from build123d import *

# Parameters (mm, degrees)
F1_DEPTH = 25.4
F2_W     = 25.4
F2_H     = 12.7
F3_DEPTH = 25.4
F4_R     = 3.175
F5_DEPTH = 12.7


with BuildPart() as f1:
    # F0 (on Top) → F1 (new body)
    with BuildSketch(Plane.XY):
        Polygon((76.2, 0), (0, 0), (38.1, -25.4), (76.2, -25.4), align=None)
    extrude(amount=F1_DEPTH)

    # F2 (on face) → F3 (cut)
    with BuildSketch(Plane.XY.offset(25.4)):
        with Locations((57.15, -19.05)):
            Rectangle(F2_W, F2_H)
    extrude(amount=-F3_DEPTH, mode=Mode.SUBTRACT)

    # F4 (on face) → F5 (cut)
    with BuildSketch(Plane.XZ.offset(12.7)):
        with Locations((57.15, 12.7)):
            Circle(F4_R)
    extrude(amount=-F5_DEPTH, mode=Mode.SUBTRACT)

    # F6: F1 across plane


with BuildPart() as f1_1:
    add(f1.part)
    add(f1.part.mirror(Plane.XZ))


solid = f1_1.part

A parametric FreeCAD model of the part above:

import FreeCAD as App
import Part
import Sketcher

V = App.Vector
Q = App.Units.Quantity

doc = App.newDocument("Part")
body = doc.addObject("PartDesign::Body", "Body")

sketch1 = body.newObject("Sketcher::SketchObject", "Sketch")
sketch1.AttachmentSupport = (doc.getObject("XY_Plane"), [""])
sketch1.MapMode = "FlatFace"
sketch1.addGeometry([
    Part.LineSegment(V(76, 0, 0), V(0, 0, 0)),
    Part.LineSegment(V(0, 0, 0), V(38, -25, 0)),
    Part.LineSegment(V(38, -25, 0), V(76, -25, 0)),
    Part.LineSegment(V(76, -25, 0), V(76, 0, 0)),
], False)
sketch1.addConstraint([
    Sketcher.Constraint("Coincident", 0, 2, 1, 1),
    Sketcher.Constraint("Coincident", 1, 2, 2, 1),
    Sketcher.Constraint("Coincident", 2, 2, 3, 1),
    Sketcher.Constraint("Coincident", 3, 2, 0, 1),
    Sketcher.Constraint("Horizontal", 0),
    Sketcher.Constraint("Horizontal", 2),
    Sketcher.Constraint("Vertical", 3),
    Sketcher.Constraint("Coincident", 0, 2, -1, 1),
    Sketcher.Constraint("DistanceX", 0, 2, 0, 1, Q("3 in")),
    Sketcher.Constraint("DistanceY", 3, 1, 3, 2, Q("1 in")),
    Sketcher.Constraint("DistanceX", 2, 1, 2, 2, Q("1.5 in")),
])
pad1 = body.newObject("PartDesign::Pad", "Pad")
pad1.Profile = sketch1
pad1.Length = Q("1 in")

sketch2 = body.newObject("Sketcher::SketchObject", "Sketch001")
sketch2.AttachmentSupport = (doc.getObject("XY_Plane"), [""])
sketch2.MapMode = "FlatFace"
sketch2.AttachmentOffset = App.Placement(V(0, 0, 1 * 25.4), App.Rotation())
sketch2.addGeometry([
    Part.LineSegment(V(44, -13, 0), V(44, -25, 0)),
    Part.LineSegment(V(44, -25, 0), V(70, -25, 0)),
    Part.LineSegment(V(70, -25, 0), V(70, -13, 0)),
    Part.LineSegment(V(70, -13, 0), V(44, -13, 0)),
], False)
sketch2.addConstraint([
    Sketcher.Constraint("Coincident", 0, 2, 1, 1),
    Sketcher.Constraint("Coincident", 1, 2, 2, 1),
    Sketcher.Constraint("Coincident", 2, 2, 3, 1),
    Sketcher.Constraint("Coincident", 3, 2, 0, 1),
    Sketcher.Constraint("Vertical", 0),
    Sketcher.Constraint("Horizontal", 1),
    Sketcher.Constraint("Vertical", 2),
    Sketcher.Constraint("Horizontal", 3),
    Sketcher.Constraint("DistanceX", 1, 1, 1, 2, Q("1 in")),
    Sketcher.Constraint("DistanceY", 0, 2, 0, 1, Q("0.5 in")),
    Sketcher.Constraint("DistanceY", 0, 2, -1, 1, Q("1 in")),
    Sketcher.Constraint("DistanceX", -1, 1, 0, 2, Q("1.75 in")),
])
pocket1 = body.newObject("PartDesign::Pocket", "Pocket")
pocket1.Profile = sketch2
pocket1.Length = Q("1 in")

sketch3 = body.newObject("Sketcher::SketchObject", "Sketch002")
sketch3.AttachmentSupport = (doc.getObject("XZ_Plane"), [""])
sketch3.MapMode = "FlatFace"
sketch3.AttachmentOffset = App.Placement(V(0, 0, 0.5 * 25.4), App.Rotation())
sketch3.addGeometry(Part.Circle(V(57.1, 12.7, 0), V(0, 0, 1), 3.2), False)
sketch3.addConstraint([
    Sketcher.Constraint("Diameter", 0, Q("0.25 in")),
    Sketcher.Constraint("DistanceY", -1, 1, 0, 3, Q("0.5 in")),
    Sketcher.Constraint("DistanceX", -1, 1, 0, 3, Q("2.25 in")),
])
pocket2 = body.newObject("PartDesign::Pocket", "Pocket001")
pocket2.Profile = sketch3
pocket2.Length = Q("0.5 in")
body2 = doc.addObject("PartDesign::Body", "Body001")
doc.recompute()

body2.BaseFeature = body
doc.recompute()

mirroring = doc.addObject("Part::Mirroring", "Mirroring")
mirroring.Source = body
mirroring.Base = V(0, 0, 0)
mirroring.Normal = V(0, -1, 0)
body3 = doc.addObject("PartDesign::Body", "Body002")
body3.BaseFeature = mirroring
boolean = body2.newObject("PartDesign::Boolean", "Boolean")
boolean.Type = "Fuse"
boolean.addObjects([body3])
doc.recompute()
mirroring.Visibility = False

doc.recompute()
